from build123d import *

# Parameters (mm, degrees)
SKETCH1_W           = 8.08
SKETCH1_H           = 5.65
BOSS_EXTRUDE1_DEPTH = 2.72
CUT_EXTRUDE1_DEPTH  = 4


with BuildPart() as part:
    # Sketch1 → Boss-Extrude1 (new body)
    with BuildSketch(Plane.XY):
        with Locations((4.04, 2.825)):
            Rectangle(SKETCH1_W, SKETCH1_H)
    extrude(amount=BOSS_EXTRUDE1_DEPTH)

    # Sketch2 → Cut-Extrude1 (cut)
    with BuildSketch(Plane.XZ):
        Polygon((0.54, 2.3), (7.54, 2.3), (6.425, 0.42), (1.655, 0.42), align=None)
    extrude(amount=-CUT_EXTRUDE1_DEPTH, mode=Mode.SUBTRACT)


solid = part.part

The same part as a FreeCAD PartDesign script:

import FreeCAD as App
import Part
import Sketcher
from FreeCAD import Vector


def add_polygon(sketch, points):
    """Adds a closed chain of lines whose ends are joined by coincident constraints."""
    first, n = sketch.GeometryCount, len(points)
    for a, b in zip(points, points[1:] + points[:1]):
        sketch.addGeometry(Part.LineSegment(App.Vector(*a, 0), App.Vector(*b, 0)), False)
    for i in range(n):
        sketch.addConstraint(Sketcher.Constraint("Coincident", first + i, 2, first + (i + 1) % n, 1))

doc = App.newDocument("Part")
body = doc.addObject("PartDesign::Body", "Body")

# Sketch on XY plane
sketch1 = body.newObject("Sketcher::SketchObject", "Sketch")
sketch1.AttachmentSupport = (doc.getObject("XY_Plane"), [""])
sketch1.MapMode = "FlatFace"
add_polygon(sketch1, [(0, 5.65), (0, 0), (8.08, 0), (8.08, 5.65)])  # lines 0-3
sketch1.addConstraint(Sketcher.Constraint("Vertical", 0))
sketch1.addConstraint(Sketcher.Constraint("Horizontal", 1))
sketch1.addConstraint(Sketcher.Constraint("Vertical", 2))
sketch1.addConstraint(Sketcher.Constraint("Horizontal", 3))
sketch1.addConstraint(Sketcher.Constraint("Coincident", 0, 2, -1, 1))
sketch1.addConstraint(Sketcher.Constraint("DistanceX", 1, 1, 1, 2, 8.08))
sketch1.addConstraint(Sketcher.Constraint("DistanceY", 0, 2, 0, 1, 5.65))
pad1 = body.newObject("PartDesign::Pad", "Pad")
pad1.Profile = sketch1
pad1.Length = 2.72

# Sketch on XZ plane
sketch2 = body.newObject("Sketcher::SketchObject", "Sketch001")
sketch2.AttachmentSupport = (doc.getObject("XZ_Plane"), [""])
sketch2.MapMode = "FlatFace"
add_polygon(sketch2, [(7.54, 2.3), (0.54, 2.3), (1.655, 0.42), (6.425, 0.42)])  # lines 0-3
sketch2.addConstraint(Sketcher.Constraint("Horizontal", 0))
sketch2.addConstraint(Sketcher.Constraint("Horizontal", 2))
sketch2.addConstraint(Sketcher.Constraint("Equal", 1, 3))
sketch2.addConstraint(Sketcher.Constraint("DistanceX", 0, 2, 0, 1, 7.0))
sketch2.addConstraint(Sketcher.Constraint("DistanceX", 2, 1, 2, 2, 4.77))
sketch2.addConstraint(Sketcher.Constraint("DistanceY", -1, 1, 0, 2, 2.3))
sketch2.addConstraint(Sketcher.Constraint("DistanceX", -1, 1, 0, 2, 0.54))
sketch2.addConstraint(Sketcher.Constraint("DistanceY", -1, 1, 1, 2, 0.42))
pocket1 = body.newObject("PartDesign::Pocket", "Pocket")
pocket1.Profile = sketch2
pocket1.Length = 4

doc.recompute()
